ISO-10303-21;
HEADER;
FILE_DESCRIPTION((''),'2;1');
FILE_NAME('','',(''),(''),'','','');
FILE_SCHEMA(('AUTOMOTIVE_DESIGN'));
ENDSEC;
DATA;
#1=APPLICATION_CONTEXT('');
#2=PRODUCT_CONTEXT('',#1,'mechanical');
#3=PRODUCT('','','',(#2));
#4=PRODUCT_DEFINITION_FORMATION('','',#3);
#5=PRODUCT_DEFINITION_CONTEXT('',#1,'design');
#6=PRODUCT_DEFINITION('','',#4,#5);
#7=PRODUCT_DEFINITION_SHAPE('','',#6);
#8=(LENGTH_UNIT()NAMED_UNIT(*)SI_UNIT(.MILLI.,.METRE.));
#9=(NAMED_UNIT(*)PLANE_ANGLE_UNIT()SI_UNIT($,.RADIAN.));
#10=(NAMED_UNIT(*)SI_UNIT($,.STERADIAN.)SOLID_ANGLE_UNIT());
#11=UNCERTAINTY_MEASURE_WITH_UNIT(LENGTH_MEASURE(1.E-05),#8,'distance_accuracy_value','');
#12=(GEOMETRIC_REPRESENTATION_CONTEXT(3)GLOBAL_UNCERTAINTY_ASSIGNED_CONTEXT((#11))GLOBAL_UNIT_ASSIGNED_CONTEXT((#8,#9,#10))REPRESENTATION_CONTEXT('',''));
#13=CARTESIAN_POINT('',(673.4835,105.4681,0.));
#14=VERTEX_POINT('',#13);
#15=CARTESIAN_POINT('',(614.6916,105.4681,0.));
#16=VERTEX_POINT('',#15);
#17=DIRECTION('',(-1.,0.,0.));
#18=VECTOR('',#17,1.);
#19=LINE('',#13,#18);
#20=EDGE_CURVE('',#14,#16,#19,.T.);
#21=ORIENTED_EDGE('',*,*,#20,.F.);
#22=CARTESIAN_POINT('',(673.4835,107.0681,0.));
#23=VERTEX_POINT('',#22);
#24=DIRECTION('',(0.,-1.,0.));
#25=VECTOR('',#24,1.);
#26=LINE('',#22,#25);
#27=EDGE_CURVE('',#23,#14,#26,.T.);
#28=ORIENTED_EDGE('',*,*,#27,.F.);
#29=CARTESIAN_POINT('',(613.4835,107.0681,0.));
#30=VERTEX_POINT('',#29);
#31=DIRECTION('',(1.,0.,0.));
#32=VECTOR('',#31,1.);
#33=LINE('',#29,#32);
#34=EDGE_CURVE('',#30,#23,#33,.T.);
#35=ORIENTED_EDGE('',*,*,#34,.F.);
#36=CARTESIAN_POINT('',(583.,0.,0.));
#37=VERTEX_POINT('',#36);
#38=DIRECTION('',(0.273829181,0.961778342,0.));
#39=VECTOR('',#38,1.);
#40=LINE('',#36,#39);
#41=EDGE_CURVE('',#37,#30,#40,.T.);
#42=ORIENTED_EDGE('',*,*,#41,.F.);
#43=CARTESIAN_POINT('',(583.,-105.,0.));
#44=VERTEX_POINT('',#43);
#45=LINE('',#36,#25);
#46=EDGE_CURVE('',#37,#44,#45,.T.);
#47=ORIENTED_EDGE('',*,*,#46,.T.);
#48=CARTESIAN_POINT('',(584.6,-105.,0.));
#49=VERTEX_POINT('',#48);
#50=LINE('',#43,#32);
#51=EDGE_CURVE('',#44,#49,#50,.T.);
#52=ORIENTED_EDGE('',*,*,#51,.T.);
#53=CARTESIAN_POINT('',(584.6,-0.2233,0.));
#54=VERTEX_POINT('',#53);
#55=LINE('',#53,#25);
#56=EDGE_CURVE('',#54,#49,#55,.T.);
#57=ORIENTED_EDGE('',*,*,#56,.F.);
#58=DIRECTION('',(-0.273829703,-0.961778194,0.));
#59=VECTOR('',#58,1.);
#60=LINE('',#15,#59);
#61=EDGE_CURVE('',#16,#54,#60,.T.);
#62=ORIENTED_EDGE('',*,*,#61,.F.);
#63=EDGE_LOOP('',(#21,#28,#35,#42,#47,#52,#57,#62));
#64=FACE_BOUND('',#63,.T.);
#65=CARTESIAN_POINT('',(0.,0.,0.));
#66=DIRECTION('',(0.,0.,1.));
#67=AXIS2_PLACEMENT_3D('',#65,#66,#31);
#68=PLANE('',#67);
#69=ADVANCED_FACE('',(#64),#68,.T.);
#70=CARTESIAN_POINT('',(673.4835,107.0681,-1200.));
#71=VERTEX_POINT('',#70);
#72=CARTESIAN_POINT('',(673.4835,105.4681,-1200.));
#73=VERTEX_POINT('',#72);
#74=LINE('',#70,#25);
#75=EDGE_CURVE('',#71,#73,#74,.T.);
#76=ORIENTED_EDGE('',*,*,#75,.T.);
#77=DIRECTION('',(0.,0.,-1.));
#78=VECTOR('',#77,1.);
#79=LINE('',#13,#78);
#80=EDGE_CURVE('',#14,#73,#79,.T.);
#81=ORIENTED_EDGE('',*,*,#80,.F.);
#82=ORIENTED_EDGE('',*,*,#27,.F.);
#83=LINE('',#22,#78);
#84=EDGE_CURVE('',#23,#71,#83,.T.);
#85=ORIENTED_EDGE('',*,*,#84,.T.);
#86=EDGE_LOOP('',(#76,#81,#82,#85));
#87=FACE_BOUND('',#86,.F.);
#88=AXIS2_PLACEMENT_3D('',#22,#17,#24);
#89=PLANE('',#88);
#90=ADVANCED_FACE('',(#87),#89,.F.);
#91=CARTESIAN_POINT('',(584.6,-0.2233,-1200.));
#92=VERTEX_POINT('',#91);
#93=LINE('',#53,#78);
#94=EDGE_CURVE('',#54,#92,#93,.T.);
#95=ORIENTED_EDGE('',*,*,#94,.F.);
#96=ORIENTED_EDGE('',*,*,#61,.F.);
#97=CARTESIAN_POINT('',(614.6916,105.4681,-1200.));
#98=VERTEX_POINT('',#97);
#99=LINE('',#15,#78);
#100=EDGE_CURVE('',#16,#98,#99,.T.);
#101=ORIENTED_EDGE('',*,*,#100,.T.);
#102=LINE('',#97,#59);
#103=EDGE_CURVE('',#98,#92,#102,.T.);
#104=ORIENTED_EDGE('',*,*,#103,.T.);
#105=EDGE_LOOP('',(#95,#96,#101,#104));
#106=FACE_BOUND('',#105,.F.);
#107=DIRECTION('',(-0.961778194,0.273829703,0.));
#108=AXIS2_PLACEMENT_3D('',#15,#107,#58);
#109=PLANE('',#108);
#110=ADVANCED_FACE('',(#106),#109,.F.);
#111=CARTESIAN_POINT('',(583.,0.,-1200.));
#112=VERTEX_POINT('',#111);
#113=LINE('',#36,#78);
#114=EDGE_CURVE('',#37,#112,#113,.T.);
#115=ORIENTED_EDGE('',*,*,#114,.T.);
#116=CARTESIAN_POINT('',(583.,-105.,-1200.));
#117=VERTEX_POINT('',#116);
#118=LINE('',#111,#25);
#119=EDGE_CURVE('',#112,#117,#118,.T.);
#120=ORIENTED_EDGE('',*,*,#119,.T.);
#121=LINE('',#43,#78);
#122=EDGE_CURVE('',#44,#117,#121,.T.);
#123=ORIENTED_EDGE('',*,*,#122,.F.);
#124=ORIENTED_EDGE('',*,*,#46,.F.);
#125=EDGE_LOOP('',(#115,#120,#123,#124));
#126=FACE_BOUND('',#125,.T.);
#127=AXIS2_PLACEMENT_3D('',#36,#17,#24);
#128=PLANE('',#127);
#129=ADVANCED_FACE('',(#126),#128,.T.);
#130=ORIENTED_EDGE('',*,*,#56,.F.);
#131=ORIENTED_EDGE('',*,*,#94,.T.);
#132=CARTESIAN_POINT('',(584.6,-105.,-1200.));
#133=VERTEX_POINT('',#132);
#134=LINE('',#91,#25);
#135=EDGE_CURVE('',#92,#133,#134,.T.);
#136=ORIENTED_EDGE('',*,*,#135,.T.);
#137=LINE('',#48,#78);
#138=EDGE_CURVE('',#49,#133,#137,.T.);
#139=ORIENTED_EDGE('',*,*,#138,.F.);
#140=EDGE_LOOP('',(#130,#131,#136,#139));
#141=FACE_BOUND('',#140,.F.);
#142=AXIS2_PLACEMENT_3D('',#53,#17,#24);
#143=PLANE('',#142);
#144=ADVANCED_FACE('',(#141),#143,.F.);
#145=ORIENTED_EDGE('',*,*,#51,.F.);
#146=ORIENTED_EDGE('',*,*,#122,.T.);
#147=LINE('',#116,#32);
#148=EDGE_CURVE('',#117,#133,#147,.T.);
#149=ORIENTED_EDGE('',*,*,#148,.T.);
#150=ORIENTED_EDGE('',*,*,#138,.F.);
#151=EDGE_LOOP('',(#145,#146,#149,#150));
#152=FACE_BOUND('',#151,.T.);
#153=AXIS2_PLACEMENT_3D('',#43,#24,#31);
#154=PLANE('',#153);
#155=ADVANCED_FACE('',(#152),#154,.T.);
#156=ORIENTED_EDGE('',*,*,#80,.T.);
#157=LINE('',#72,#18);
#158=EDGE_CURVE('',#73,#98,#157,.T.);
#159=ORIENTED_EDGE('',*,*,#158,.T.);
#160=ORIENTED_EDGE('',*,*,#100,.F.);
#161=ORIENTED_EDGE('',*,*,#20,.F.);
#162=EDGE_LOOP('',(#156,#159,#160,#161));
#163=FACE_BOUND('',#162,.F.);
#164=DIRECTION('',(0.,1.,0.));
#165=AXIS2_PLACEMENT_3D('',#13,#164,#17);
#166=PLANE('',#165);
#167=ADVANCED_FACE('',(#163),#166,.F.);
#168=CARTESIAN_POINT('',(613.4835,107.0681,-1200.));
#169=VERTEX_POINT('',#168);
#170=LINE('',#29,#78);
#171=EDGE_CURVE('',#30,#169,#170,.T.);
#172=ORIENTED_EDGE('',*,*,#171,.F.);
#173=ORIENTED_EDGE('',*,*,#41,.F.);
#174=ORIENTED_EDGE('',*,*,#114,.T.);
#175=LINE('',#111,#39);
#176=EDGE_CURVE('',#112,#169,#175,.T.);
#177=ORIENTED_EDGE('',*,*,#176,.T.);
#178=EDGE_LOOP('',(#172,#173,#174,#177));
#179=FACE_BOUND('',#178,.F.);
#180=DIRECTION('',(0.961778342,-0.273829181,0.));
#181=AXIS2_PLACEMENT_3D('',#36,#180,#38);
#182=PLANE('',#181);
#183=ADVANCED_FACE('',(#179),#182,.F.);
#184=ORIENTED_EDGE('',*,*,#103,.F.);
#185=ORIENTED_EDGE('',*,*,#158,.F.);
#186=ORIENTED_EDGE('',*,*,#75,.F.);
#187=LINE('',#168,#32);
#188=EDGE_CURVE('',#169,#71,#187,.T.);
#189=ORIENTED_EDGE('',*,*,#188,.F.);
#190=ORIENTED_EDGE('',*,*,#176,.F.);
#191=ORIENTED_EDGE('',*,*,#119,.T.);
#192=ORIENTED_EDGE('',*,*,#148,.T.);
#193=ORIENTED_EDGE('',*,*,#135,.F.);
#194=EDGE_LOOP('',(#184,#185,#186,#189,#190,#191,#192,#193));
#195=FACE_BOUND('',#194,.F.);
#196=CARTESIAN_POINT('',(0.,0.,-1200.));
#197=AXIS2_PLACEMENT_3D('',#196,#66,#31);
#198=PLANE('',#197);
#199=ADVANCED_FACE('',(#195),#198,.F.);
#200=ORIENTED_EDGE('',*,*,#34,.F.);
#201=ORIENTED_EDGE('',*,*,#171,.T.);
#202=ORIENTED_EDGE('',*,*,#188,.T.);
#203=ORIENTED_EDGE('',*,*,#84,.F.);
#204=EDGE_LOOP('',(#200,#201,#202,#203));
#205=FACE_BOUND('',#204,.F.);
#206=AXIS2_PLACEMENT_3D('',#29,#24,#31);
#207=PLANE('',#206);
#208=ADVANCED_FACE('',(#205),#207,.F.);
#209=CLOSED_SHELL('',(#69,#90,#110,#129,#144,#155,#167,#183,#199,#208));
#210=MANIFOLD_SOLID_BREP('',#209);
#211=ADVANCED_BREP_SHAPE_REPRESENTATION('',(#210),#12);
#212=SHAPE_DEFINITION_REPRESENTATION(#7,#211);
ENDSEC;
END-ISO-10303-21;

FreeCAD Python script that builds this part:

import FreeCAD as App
import Part
import Sketcher
from FreeCAD import Vector


def add_polygon(sketch, points):
    """Adds a closed chain of lines whose ends are joined by coincident constraints."""
    first, n = sketch.GeometryCount, len(points)
    for a, b in zip(points, points[1:] + points[:1]):
        sketch.addGeometry(Part.LineSegment(App.Vector(*a, 0), App.Vector(*b, 0)), False)
    for i in range(n):
        sketch.addConstraint(Sketcher.Constraint("Coincident", first + i, 2, first + (i + 1) % n, 1))

doc = App.newDocument("Part")
body = doc.addObject("PartDesign::Body", "Body")

sketch1 = body.newObject("Sketcher::SketchObject", "Sketch")
sketch1.AttachmentSupport = (doc.getObject("XY_Plane"), [""])
sketch1.MapMode = "FlatFace"
add_polygon(sketch1, [(613.4835, 107.0681), (583, 0), (583, -105), (584.6, -105), (584.6, -0.2233), (614.6916, 105.4681), (673.4835, 105.4681), (673.4835, 107.0681)])
sketch1.addConstraint([
    Sketcher.Constraint("Vertical", 1),
    Sketcher.Constraint("Horizontal", 2),
    Sketcher.Constraint("Vertical", 3),
    Sketcher.Constraint("Horizontal", 5),
    Sketcher.Constraint("Vertical", 6),
    Sketcher.Constraint("Horizontal", 7),
    Sketcher.Constraint("PointOnObject", 0, 2, -1),
    Sketcher.Constraint("DistanceX", 7, 2, 7, 1, 60.0),
    Sketcher.Constraint("DistanceY", 1, 2, 1, 1, 105.0),
    Sketcher.Constraint("DistanceX", 2, 1, 2, 2, 1.6),
    Sketcher.Constraint("DistanceY", 6, 1, 6, 2, 1.6),
    Sketcher.Constraint("DistanceX", -1, 1, 0, 2, 583.0),
    Sketcher.Constraint("DistanceX", 5, 1, 5, 2, 58.792),
    Sketcher.Constraint("Distance", 0, 111.323),
    Sketcher.Constraint("DistanceY", 3, 1, 3, 2, 104.7767),
    Sketcher.Constraint("DistanceY", -1, 1, 4, 2, 105.468),
])
pad1 = body.newObject("PartDesign::Pad", "Pad")
pad1.Profile = sketch1
pad1.Length = 1200
pad1.Reversed = True

doc.recompute()
